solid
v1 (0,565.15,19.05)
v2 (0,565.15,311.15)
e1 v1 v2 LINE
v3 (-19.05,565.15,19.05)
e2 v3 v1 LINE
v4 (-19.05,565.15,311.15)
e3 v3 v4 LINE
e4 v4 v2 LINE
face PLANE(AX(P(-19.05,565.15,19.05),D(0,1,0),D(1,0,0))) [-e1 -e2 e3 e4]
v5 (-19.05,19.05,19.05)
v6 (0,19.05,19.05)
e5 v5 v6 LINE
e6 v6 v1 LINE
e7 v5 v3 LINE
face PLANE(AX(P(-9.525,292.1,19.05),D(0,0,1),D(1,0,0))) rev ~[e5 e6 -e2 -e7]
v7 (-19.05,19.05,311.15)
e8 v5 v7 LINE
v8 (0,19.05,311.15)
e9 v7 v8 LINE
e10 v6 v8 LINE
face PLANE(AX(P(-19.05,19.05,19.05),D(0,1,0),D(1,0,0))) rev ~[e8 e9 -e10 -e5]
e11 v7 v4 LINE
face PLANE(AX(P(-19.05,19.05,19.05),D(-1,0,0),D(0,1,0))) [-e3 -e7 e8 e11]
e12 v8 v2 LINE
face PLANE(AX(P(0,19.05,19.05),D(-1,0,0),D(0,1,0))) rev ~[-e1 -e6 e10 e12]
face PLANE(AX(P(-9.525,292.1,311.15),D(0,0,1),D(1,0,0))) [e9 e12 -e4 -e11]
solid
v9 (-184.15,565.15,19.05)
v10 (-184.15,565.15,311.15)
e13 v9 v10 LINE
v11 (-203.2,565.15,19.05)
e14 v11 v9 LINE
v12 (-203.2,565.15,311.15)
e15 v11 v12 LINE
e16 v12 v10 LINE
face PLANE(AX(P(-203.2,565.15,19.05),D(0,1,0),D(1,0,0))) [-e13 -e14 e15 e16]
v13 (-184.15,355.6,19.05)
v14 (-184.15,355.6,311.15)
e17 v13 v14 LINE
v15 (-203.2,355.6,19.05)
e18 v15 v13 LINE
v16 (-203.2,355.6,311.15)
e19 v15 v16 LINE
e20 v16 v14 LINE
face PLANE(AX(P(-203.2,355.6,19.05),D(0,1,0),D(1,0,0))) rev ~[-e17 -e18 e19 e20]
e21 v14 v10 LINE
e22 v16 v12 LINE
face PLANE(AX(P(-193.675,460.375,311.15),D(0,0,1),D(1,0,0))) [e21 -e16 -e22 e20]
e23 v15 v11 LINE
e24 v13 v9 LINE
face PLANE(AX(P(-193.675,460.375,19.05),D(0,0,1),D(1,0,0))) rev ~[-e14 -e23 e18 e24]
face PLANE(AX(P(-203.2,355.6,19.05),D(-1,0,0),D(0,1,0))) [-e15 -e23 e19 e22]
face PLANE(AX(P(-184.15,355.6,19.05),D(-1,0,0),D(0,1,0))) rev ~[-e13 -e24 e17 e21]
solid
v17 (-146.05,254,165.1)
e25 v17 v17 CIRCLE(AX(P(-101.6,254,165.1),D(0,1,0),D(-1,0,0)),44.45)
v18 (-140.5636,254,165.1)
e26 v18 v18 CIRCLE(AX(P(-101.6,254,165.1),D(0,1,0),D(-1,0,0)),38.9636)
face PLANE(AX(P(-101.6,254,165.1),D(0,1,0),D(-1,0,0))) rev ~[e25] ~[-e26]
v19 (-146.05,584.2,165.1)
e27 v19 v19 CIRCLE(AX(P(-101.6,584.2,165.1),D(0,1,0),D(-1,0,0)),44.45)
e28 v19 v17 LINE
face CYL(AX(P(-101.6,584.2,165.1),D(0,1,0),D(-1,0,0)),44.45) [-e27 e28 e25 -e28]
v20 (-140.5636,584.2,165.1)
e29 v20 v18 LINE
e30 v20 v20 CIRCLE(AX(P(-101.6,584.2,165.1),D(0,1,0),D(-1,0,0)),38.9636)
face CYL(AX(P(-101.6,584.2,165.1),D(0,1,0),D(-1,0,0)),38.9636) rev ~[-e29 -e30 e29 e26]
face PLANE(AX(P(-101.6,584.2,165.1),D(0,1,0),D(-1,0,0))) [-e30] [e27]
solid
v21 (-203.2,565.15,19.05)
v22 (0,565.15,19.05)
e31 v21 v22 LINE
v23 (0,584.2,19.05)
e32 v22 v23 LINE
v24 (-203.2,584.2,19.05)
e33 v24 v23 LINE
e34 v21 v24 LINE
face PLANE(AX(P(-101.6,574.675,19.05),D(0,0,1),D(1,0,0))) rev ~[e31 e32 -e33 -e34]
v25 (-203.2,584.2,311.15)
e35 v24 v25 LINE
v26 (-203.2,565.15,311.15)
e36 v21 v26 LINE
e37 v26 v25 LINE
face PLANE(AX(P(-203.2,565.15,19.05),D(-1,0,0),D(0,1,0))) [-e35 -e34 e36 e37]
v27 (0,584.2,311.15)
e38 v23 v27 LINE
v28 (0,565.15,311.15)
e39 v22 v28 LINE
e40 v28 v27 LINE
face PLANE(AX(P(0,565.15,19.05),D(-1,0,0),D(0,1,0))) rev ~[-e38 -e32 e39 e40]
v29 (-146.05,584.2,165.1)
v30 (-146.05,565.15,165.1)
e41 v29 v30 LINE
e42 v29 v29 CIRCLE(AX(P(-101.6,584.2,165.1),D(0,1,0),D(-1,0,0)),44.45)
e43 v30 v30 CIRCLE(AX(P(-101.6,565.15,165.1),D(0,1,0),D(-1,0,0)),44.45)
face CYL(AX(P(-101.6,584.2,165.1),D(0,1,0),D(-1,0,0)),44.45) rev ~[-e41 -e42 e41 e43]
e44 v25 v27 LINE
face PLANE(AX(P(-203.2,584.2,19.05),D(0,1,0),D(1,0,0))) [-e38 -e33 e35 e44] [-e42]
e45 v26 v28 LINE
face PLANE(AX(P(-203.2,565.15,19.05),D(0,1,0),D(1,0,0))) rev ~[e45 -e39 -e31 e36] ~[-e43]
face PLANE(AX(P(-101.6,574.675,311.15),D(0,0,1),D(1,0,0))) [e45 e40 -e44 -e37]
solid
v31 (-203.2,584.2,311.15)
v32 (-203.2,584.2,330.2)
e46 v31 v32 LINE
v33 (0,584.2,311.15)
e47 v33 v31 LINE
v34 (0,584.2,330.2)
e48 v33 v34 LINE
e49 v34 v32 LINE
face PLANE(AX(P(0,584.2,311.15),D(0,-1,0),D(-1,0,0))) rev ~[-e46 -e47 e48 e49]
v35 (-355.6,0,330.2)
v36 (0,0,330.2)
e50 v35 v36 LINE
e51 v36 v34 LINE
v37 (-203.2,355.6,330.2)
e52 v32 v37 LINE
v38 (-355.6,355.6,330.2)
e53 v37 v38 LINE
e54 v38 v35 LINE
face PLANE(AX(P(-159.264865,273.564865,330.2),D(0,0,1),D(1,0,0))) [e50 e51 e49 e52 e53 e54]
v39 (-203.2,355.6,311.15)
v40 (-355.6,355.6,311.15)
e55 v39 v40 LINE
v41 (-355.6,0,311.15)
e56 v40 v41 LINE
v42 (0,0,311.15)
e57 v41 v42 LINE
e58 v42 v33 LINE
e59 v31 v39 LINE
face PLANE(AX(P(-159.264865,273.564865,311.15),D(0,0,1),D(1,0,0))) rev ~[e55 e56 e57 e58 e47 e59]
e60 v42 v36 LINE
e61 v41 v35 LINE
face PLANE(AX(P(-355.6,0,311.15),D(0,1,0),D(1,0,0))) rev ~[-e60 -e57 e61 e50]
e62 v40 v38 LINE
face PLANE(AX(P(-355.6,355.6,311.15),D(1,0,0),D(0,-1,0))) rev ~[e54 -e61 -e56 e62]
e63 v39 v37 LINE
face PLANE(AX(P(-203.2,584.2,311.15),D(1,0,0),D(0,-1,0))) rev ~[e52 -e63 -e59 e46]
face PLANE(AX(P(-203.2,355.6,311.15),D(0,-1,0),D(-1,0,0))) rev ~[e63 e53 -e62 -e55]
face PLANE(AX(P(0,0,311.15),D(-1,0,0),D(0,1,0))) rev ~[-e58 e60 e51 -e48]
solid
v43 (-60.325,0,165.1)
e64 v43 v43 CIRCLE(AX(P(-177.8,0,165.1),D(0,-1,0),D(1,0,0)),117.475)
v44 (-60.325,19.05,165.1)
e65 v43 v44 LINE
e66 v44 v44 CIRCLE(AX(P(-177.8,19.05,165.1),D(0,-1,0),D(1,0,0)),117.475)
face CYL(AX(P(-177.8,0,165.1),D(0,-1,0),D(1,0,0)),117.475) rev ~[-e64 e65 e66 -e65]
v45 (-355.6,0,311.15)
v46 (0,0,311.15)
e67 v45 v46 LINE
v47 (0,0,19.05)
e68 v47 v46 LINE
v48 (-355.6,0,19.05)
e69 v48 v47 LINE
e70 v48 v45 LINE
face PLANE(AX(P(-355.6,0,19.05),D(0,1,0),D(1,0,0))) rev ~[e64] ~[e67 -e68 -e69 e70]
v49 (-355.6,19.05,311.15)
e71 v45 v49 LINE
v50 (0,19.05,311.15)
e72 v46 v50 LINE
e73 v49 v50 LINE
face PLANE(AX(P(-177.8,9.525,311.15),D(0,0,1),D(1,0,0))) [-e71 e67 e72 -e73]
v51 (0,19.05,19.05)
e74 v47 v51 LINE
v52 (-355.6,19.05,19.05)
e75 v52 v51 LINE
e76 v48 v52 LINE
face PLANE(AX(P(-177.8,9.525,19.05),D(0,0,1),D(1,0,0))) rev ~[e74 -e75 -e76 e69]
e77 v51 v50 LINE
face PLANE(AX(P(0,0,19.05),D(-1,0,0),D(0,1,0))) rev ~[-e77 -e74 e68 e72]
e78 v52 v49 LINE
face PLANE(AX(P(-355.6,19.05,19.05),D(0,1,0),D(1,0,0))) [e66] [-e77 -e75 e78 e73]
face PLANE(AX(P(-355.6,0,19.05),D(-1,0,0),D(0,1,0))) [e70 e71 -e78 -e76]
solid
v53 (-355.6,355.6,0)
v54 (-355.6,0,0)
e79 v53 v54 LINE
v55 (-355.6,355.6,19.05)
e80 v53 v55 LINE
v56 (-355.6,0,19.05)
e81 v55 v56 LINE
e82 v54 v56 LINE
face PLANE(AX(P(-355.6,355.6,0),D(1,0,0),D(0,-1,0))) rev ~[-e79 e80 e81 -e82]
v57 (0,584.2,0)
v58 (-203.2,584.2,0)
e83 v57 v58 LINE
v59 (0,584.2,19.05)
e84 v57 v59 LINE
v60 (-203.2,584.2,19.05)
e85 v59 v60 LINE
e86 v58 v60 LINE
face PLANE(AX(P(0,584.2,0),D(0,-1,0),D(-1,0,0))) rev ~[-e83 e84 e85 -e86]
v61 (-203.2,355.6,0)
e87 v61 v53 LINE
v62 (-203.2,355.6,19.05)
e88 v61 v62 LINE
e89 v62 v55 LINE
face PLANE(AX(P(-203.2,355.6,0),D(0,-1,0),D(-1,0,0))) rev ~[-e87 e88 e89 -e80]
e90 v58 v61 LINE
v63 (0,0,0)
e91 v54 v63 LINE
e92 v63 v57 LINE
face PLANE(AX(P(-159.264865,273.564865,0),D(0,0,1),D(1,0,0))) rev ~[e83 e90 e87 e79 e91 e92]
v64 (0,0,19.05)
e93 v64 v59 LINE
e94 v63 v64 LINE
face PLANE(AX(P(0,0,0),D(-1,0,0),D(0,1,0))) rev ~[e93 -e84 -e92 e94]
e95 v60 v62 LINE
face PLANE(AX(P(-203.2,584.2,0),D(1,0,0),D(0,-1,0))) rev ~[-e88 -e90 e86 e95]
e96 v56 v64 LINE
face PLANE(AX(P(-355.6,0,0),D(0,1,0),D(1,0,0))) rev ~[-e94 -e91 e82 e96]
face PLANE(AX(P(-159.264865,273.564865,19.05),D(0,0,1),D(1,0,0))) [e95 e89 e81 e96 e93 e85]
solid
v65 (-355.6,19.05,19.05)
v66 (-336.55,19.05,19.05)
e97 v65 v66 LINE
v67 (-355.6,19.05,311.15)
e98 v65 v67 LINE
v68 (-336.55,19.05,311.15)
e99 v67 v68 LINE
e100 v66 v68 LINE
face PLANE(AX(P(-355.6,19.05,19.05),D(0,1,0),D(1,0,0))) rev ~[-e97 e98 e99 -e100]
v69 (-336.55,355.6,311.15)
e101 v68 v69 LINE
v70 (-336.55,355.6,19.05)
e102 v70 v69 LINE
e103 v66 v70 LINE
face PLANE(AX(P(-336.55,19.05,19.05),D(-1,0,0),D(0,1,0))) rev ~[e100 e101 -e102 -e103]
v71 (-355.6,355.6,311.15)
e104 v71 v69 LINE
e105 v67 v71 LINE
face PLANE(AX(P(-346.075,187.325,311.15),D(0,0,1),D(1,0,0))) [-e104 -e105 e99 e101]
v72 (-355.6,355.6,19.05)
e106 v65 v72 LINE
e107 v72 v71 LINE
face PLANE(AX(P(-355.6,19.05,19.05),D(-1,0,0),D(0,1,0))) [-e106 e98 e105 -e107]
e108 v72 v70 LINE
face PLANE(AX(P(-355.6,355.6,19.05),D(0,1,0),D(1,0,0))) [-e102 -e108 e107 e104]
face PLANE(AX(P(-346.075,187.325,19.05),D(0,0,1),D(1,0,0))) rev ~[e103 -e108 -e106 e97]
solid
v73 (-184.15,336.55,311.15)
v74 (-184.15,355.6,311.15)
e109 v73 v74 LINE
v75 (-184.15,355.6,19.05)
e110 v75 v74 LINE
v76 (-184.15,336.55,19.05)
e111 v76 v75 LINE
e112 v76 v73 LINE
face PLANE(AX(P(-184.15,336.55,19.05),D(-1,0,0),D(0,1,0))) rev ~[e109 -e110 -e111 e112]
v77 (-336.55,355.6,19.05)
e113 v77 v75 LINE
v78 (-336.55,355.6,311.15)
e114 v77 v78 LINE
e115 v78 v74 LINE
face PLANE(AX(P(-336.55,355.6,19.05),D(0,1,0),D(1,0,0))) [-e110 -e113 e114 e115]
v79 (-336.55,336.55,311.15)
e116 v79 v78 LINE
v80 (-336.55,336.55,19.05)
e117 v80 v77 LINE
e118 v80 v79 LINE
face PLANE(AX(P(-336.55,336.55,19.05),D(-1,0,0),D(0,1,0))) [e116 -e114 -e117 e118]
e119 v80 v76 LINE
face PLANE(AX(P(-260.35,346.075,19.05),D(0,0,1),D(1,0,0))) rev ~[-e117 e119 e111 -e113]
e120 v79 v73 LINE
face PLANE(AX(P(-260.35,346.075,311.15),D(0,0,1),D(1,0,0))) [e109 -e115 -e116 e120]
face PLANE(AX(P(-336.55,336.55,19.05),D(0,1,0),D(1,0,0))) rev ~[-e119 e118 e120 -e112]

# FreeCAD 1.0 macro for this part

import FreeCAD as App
import Part
import Sketcher

V = App.Vector
Q = App.Units.Quantity

doc = App.newDocument("Part")
body = doc.addObject("PartDesign::Body", "Body")

# Sketch on XY plane
sketch1 = body.newObject("Sketcher::SketchObject", "Sketch")
sketch1.AttachmentSupport = (doc.getObject("XY_Plane"), [""])
sketch1.MapMode = "FlatFace"
sketch1.addGeometry([
    Part.LineSegment(V(-356, 0, 0), V(0, 0, 0)),  # 0
    Part.LineSegment(V(0, 0, 0), V(0, 584, 0)),  # 1
    Part.LineSegment(V(0, 584, 0), V(-203, 584, 0)),  # 2
    Part.LineSegment(V(-203, 584, 0), V(-203, 356, 0)),  # 3
    Part.LineSegment(V(-203, 356, 0), V(-356, 356, 0)),  # 4
    Part.LineSegment(V(-356, 356, 0), V(-356, 0, 0)),  # 5
], False)
sketch1.addConstraint([
    Sketcher.Constraint("Coincident", 0, 2, 1, 1),
    Sketcher.Constraint("Coincident", 1, 2, 2, 1),
    Sketcher.Constraint("Coincident", 2, 2, 3, 1),
    Sketcher.Constraint("Coincident", 3, 2, 4, 1),
    Sketcher.Constraint("Coincident", 4, 2, 5, 1),
    Sketcher.Constraint("Coincident", 5, 2, 0, 1),
    Sketcher.Constraint("Horizontal", 0),
    Sketcher.Constraint("Vertical", 1),
    Sketcher.Constraint("Horizontal", 2),
    Sketcher.Constraint("Vertical", 3),
    Sketcher.Constraint("Horizontal", 4),
    Sketcher.Constraint("Vertical", 5),
    Sketcher.Constraint("Coincident", 0, 2, -1, 1),
    Sketcher.Constraint("Equal", 0, 5),
    Sketcher.Constraint("DistanceX", 0, 1, 0, 2, Q("14 in")),
    Sketcher.Constraint("DistanceX", 2, 2, 2, 1, Q("8 in")),
    Sketcher.Constraint("DistanceY", 1, 1, 1, 2, Q("23 in")),
])
pad1 = body.newObject("PartDesign::Pad", "Pad")
pad1.Profile = sketch1
pad1.Length = Q("0.75 in")
body2 = doc.addObject("PartDesign::Body", "Body001")

# Sketch on XY plane
sketch2 = body2.newObject("Sketcher::SketchObject", "Sketch001")
sketch2.AttachmentSupport = (doc.getObject("XY_Plane001"), [""])
sketch2.MapMode = "FlatFace"
sketch2.AttachmentOffset = App.Placement(V(0, 0, 0.75 * 25.4), App.Rotation())
sketch2.addGeometry([
    Part.LineSegment(V(-356, 19, 0), V(-356, 0, 0)),
    Part.LineSegment(V(-356, 0, 0), V(0, 0, 0)),
    Part.LineSegment(V(0, 0, 0), V(0, 19, 0)),
    Part.LineSegment(V(0, 19, 0), V(-356, 19, 0)),
], False)
sketch2.addConstraint([
    Sketcher.Constraint("Coincident", 0, 2, 1, 1),
    Sketcher.Constraint("Coincident", 1, 2, 2, 1),
    Sketcher.Constraint("Coincident", 2, 2, 3, 1),
    Sketcher.Constraint("Coincident", 3, 2, 0, 1),
    Sketcher.Constraint("Vertical", 0),
    Sketcher.Constraint("Horizontal", 1),
    Sketcher.Constraint("Vertical", 2),
    Sketcher.Constraint("Horizontal", 3),
    Sketcher.Constraint("Coincident", 1, 2, -1, 1),
    Sketcher.Constraint("DistanceX", 1, 1, 1, 2, Q("14 in")),
    Sketcher.Constraint("DistanceY", 0, 2, 0, 1, Q("0.75 in")),
])
pad2 = body2.newObject("PartDesign::Pad", "Pad001")
pad2.Profile = sketch2
pad2.Length = Q("11.5 in")

# Sketch on XZ plane
sketch3 = body2.newObject("Sketcher::SketchObject", "Sketch002")
sketch3.AttachmentSupport = (doc.getObject("XZ_Plane001"), [""])
sketch3.MapMode = "FlatFace"
sketch3.addGeometry(Part.Circle(V(-178, 165, 0), V(0, 0, 1), 117), False)
sketch3.addConstraint([
    Sketcher.Constraint("Diameter", 0, Q("9.25 in")),
    Sketcher.Constraint("DistanceX", 0, 3, -1, 1, Q("7 in")),
    Sketcher.Constraint("DistanceY", -1, 1, 0, 3, Q("6.5 in")),
])
pocket1 = body2.newObject("PartDesign::Pocket", "Pocket")
pocket1.Profile = sketch3
pocket1.Type = "ThroughAll"
body3 = doc.addObject("PartDesign::Body", "Body002")

# Sketch on XY plane
sketch4 = body3.newObject("Sketcher::SketchObject", "Sketch003")
sketch4.AttachmentSupport = (doc.getObject("XY_Plane002"), [""])
sketch4.MapMode = "FlatFace"
sketch4.AttachmentOffset = App.Placement(V(0, 0, 0.75 * 25.4), App.Rotation())
sketch4.addGeometry([
    Part.LineSegment(V(-203, 584, 0), V(-203, 565, 0)),
    Part.LineSegment(V(-203, 565, 0), V(0, 565, 0)),
    Part.LineSegment(V(0, 565, 0), V(0, 584, 0)),
    Part.LineSegment(V(0, 584, 0), V(-203, 584, 0)),
], False)
sketch4.addConstraint([
    Sketcher.Constraint("Coincident", 0, 2, 1, 1),
    Sketcher.Constraint("Coincident", 1, 2, 2, 1),
    Sketcher.Constraint("Coincident", 2, 2, 3, 1),
    Sketcher.Constraint("Coincident", 3, 2, 0, 1),
    Sketcher.Constraint("Vertical", 0),
    Sketcher.Constraint("Horizontal", 1),
    Sketcher.Constraint("Vertical", 2),
    Sketcher.Constraint("Horizontal", 3),
    Sketcher.Constraint("PointOnObject", 1, 2, -2),
    Sketcher.Constraint("DistanceX", 1, 1, 1, 2, Q("8 in")),
    Sketcher.Constraint("DistanceY", -1, 1, 2, 2, Q("23 in")),
    Sketcher.Constraint("DistanceY", 0, 2, 0, 1, Q("0.75 in")),
])
pad3 = body3.newObject("PartDesign::Pad", "Pad002")
pad3.Profile = sketch4
pad3.Length = Q("11.5 in")

# Sketch on XZ plane
sketch5 = body3.newObject("Sketcher::SketchObject", "Sketch004")
sketch5.AttachmentSupport = (doc.getObject("XZ_Plane002"), [""])
sketch5.MapMode = "FlatFace"
sketch5.AttachmentOffset = App.Placement(V(0, 0, -23 * 25.4), App.Rotation())
sketch5.addGeometry(Part.Circle(V(-102, 165, 0), V(0, 0, 1), 44), False)
sketch5.addConstraint([
    Sketcher.Constraint("Diameter", 0, Q("3.5 in")),
    Sketcher.Constraint("DistanceX", 0, 3, -1, 1, Q("4 in")),
    Sketcher.Constraint("DistanceY", -1, 1, 0, 3, Q("6.5 in")),
])
pocket2 = body3.newObject("PartDesign::Pocket", "Pocket001")
pocket2.Profile = sketch5
pocket2.Type = "ThroughAll"
pocket2.Reversed = True
body4 = doc.addObject("PartDesign::Body", "Body003")

# Sketch on XY plane
sketch6 = body4.newObject("Sketcher::SketchObject", "Sketch005")
sketch6.AttachmentSupport = (doc.getObject("XY_Plane003"), [""])
sketch6.MapMode = "FlatFace"
sketch6.AttachmentOffset = App.Placement(V(0, 0, 0.75 * 25.4), App.Rotation())
sketch6.addGeometry([
    Part.LineSegment(V(-19, 565, 0), V(-19, 19, 0)),
    Part.LineSegment(V(-19, 19, 0), V(0, 19, 0)),
    Part.LineSegment(V(0, 19, 0), V(0, 565, 0)),
    Part.LineSegment(V(0, 565, 0), V(-19, 565, 0)),
], False)
sketch6.addConstraint([
    Sketcher.Constraint("Coincident", 0, 2, 1, 1),
    Sketcher.Constraint("Coincident", 1, 2, 2, 1),
    Sketcher.Constraint("Coincident", 2, 2, 3, 1),
    Sketcher.Constraint("Coincident", 3, 2, 0, 1),
    Sketcher.Constraint("Vertical", 0),
    Sketcher.Constraint("Horizontal", 1),
    Sketcher.Constraint("Vertical", 2),
    Sketcher.Constraint("Horizontal", 3),
    Sketcher.Constraint("PointOnObject", 1, 2, -2),
    Sketcher.Constraint("DistanceY", 0, 2, 0, 1, Q("21.5 in")),
    Sketcher.Constraint("DistanceX", 1, 1, 1, 2, Q("0.75 in")),
    Sketcher.Constraint("DistanceY", -1, 1, 0, 2, Q("0.75 in")),
])
pad4 = body4.newObject("PartDesign::Pad", "Pad003")
pad4.Profile = sketch6
pad4.Length = Q("11.5 in")
body5 = doc.addObject("PartDesign::Body", "Body004")

# Sketch on XY plane
sketch7 = body5.newObject("Sketcher::SketchObject", "Sketch006")
sketch7.AttachmentSupport = (doc.getObject("XY_Plane004"), [""])
sketch7.MapMode = "FlatFace"
sketch7.AttachmentOffset = App.Placement(V(0, 0, 0.75 * 25.4), App.Rotation())
sketch7.addGeometry([
    Part.LineSegment(V(-356, 356, 0), V(-356, 19, 0)),
    Part.LineSegment(V(-356, 19, 0), V(-337, 19, 0)),
    Part.LineSegment(V(-337, 19, 0), V(-337, 356, 0)),
    Part.LineSegment(V(-337, 356, 0), V(-356, 356, 0)),
], False)
sketch7.addConstraint([
    Sketcher.Constraint("Coincident", 0, 2, 1, 1),
    Sketcher.Constraint("Coincident", 1, 2, 2, 1),
    Sketcher.Constraint("Coincident", 2, 2, 3, 1),
    Sketcher.Constraint("Coincident", 3, 2, 0, 1),
    Sketcher.Constraint("Vertical", 0),
    Sketcher.Constraint("Horizontal", 1),
    Sketcher.Constraint("Vertical", 2),
    Sketcher.Constraint("Horizontal", 3),
    Sketcher.Constraint("DistanceX", 0, 2, -1, 1, Q("14 in")),
    Sketcher.Constraint("DistanceY", -1, 1, 2, 2, Q("14 in")),
    Sketcher.Constraint("DistanceX", 1, 1, 1, 2, Q("0.75 in")),
    Sketcher.Constraint("DistanceY", 0, 2, 0, 1, Q("13.25 in")),
])
pad5 = body5.newObject("PartDesign::Pad", "Pad004")
pad5.Profile = sketch7
pad5.Length = Q("11.5 in")
body6 = doc.addObject("PartDesign::Body", "Body005")

# Sketch on XY plane
sketch8 = body6.newObject("Sketcher::SketchObject", "Sketch007")
sketch8.AttachmentSupport = (doc.getObject("XY_Plane005"), [""])
sketch8.MapMode = "FlatFace"
sketch8.AttachmentOffset = App.Placement(V(0, 0, 0.75 * 25.4), App.Rotation())
sketch8.addGeometry([
    Part.LineSegment(V(-203, 565, 0), V(-203, 356, 0)),
    Part.LineSegment(V(-203, 356, 0), V(-184, 356, 0)),
    Part.LineSegment(V(-184, 356, 0), V(-184, 565, 0)),
    Part.LineSegment(V(-184, 565, 0), V(-203, 565, 0)),
], False)
sketch8.addConstraint([
    Sketcher.Constraint("Coincident", 0, 2, 1, 1),
    Sketcher.Constraint("Coincident", 1, 2, 2, 1),
    Sketcher.Constraint("Coincident", 2, 2, 3, 1),
    Sketcher.Constraint("Coincident", 3, 2, 0, 1),
    Sketcher.Constraint("Vertical", 0),
    Sketcher.Constraint("Horizontal", 1),
    Sketcher.Constraint("Vertical", 2),
    Sketcher.Constraint("Horizontal", 3),
    Sketcher.Constraint("DistanceX", 0, 2, -1, 1, Q("8 in")),
    Sketcher.Constraint("DistanceY", -1, 1, 0, 2, Q("14 in")),
    Sketcher.Constraint("DistanceX", 1, 1, 1, 2, Q("0.75 in")),
    Sketcher.Constraint("DistanceY", 0, 2, 0, 1, Q("8.25 in")),
])
pad6 = body6.newObject("PartDesign::Pad", "Pad005")
pad6.Profile = sketch8
pad6.Length = Q("11.5 in")
body7 = doc.addObject("PartDesign::Body", "Body006")

# Sketch on XY plane
sketch9 = body7.newObject("Sketcher::SketchObject", "Sketch008")
sketch9.AttachmentSupport = (doc.getObject("XY_Plane006"), [""])
sketch9.MapMode = "FlatFace"
sketch9.AttachmentOffset = App.Placement(V(0, 0, 0.75 * 25.4), App.Rotation())
sketch9.addGeometry([
    Part.LineSegment(V(-337, 356, 0), V(-337, 337, 0)),
    Part.LineSegment(V(-337, 337, 0), V(-184, 337, 0)),
    Part.LineSegment(V(-184, 337, 0), V(-184, 356, 0)),
    Part.LineSegment(V(-184, 356, 0), V(-337, 356, 0)),
], False)
sketch9.addConstraint([
    Sketcher.Constraint("Coincident", 0, 2, 1, 1),
    Sketcher.Constraint("Coincident", 1, 2, 2, 1),
    Sketcher.Constraint("Coincident", 2, 2, 3, 1),
    Sketcher.Constraint("Coincident", 3, 2, 0, 1),
    Sketcher.Constraint("Vertical", 0),
    Sketcher.Constraint("Horizontal", 1),
    Sketcher.Constraint("Vertical", 2),
    Sketcher.Constraint("Horizontal", 3),
    Sketcher.Constraint("DistanceX", 1, 1, 1, 2, Q("6 in")),
    Sketcher.Constraint("DistanceY", -1, 1, 2, 2, Q("14 in")),
    Sketcher.Constraint("DistanceY", 0, 2, 0, 1, Q("0.75 in")),
    Sketcher.Constraint("DistanceX", 0, 2, -1, 1, Q("13.25 in")),
])
pad7 = body7.newObject("PartDesign::Pad", "Pad006")
pad7.Profile = sketch9
pad7.Length = Q("11.5 in")
body8 = doc.addObject("PartDesign::Body", "Body007")

# Sketch on XY plane
sketch10 = body8.newObject("Sketcher::SketchObject", "Sketch009")
sketch10.AttachmentSupport = (doc.getObject("XY_Plane007"), [""])
sketch10.MapMode = "FlatFace"
sketch10.AttachmentOffset = App.Placement(V(0, 0, 12.25 * 25.4), App.Rotation())
sketch10.addGeometry([
    Part.LineSegment(V(0, 0, 0), V(0, 584, 0)),  # 0
    Part.LineSegment(V(0, 584, 0), V(-203, 584, 0)),  # 1
    Part.LineSegment(V(-203, 584, 0), V(-203, 356, 0)),  # 2
    Part.LineSegment(V(-203, 356, 0), V(-356, 356, 0)),  # 3
    Part.LineSegment(V(-356, 356, 0), V(-356, 0, 0)),  # 4
    Part.LineSegment(V(-356, 0, 0), V(0, 0, 0)),  # 5
], False)
sketch10.addConstraint([
    Sketcher.Constraint("Coincident", 0, 2, 1, 1),
    Sketcher.Constraint("Coincident", 1, 2, 2, 1),
    Sketcher.Constraint("Coincident", 2, 2, 3, 1),
    Sketcher.Constraint("Coincident", 3, 2, 4, 1),
    Sketcher.Constraint("Coincident", 4, 2, 5, 1),
    Sketcher.Constraint("Coincident", 5, 2, 0, 1),
    Sketcher.Constraint("Vertical", 0),
    Sketcher.Constraint("Horizontal", 1),
    Sketcher.Constraint("Vertical", 2),
    Sketcher.Constraint("Horizontal", 3),
    Sketcher.Constraint("Vertical", 4),
    Sketcher.Constraint("Horizontal", 5),
    Sketcher.Constraint("Coincident", 5, 2, -1, 1),
    Sketcher.Constraint("Equal", 5, 4),
    Sketcher.Constraint("DistanceX", 1, 2, 1, 1, Q("8 in")),
    Sketcher.Constraint("DistanceX", 3, 2, 3, 1, Q("6 in")),
    Sketcher.Constraint("DistanceY", 0, 1, 0, 2, Q("23 in")),
])
pad8 = body8.newObject("PartDesign::Pad", "Pad007")
pad8.Profile = sketch10
pad8.Length = Q("0.75 in")
body9 = doc.addObject("PartDesign::Body", "Body008")

# Sketch on XZ plane
sketch11 = body9.newObject("Sketcher::SketchObject", "Sketch010")
sketch11.AttachmentSupport = (doc.getObject("XZ_Plane008"), [""])
sketch11.MapMode = "FlatFace"
sketch11.AttachmentOffset = App.Placement(V(0, 0, -23 * 25.4), App.Rotation())
sketch11.addGeometry([
    Part.Circle(V(-102, 165, 0), V(0, 0, 1), 44),
    Part.Circle(V(-102, 165, 0), V(0, 0, 1), 39),
], False)
sketch11.addConstraint([
    Sketcher.Constraint("Coincident", 1, 3, 0, 3),
    Sketcher.Constraint("Diameter", 0, Q("3.5 in")),
    Sketcher.Constraint("Diameter", 1, Q("3.068 in")),
    Sketcher.Constraint("DistanceX", 0, 3, -1, 1, Q("4 in")),
    Sketcher.Constraint("DistanceY", -1, 1, 0, 3, Q("6.5 in")),
])
pad9 = body9.newObject("PartDesign::Pad", "Pad008")
pad9.Profile = sketch11
pad9.Length = Q("13 in")

doc.recompute()
